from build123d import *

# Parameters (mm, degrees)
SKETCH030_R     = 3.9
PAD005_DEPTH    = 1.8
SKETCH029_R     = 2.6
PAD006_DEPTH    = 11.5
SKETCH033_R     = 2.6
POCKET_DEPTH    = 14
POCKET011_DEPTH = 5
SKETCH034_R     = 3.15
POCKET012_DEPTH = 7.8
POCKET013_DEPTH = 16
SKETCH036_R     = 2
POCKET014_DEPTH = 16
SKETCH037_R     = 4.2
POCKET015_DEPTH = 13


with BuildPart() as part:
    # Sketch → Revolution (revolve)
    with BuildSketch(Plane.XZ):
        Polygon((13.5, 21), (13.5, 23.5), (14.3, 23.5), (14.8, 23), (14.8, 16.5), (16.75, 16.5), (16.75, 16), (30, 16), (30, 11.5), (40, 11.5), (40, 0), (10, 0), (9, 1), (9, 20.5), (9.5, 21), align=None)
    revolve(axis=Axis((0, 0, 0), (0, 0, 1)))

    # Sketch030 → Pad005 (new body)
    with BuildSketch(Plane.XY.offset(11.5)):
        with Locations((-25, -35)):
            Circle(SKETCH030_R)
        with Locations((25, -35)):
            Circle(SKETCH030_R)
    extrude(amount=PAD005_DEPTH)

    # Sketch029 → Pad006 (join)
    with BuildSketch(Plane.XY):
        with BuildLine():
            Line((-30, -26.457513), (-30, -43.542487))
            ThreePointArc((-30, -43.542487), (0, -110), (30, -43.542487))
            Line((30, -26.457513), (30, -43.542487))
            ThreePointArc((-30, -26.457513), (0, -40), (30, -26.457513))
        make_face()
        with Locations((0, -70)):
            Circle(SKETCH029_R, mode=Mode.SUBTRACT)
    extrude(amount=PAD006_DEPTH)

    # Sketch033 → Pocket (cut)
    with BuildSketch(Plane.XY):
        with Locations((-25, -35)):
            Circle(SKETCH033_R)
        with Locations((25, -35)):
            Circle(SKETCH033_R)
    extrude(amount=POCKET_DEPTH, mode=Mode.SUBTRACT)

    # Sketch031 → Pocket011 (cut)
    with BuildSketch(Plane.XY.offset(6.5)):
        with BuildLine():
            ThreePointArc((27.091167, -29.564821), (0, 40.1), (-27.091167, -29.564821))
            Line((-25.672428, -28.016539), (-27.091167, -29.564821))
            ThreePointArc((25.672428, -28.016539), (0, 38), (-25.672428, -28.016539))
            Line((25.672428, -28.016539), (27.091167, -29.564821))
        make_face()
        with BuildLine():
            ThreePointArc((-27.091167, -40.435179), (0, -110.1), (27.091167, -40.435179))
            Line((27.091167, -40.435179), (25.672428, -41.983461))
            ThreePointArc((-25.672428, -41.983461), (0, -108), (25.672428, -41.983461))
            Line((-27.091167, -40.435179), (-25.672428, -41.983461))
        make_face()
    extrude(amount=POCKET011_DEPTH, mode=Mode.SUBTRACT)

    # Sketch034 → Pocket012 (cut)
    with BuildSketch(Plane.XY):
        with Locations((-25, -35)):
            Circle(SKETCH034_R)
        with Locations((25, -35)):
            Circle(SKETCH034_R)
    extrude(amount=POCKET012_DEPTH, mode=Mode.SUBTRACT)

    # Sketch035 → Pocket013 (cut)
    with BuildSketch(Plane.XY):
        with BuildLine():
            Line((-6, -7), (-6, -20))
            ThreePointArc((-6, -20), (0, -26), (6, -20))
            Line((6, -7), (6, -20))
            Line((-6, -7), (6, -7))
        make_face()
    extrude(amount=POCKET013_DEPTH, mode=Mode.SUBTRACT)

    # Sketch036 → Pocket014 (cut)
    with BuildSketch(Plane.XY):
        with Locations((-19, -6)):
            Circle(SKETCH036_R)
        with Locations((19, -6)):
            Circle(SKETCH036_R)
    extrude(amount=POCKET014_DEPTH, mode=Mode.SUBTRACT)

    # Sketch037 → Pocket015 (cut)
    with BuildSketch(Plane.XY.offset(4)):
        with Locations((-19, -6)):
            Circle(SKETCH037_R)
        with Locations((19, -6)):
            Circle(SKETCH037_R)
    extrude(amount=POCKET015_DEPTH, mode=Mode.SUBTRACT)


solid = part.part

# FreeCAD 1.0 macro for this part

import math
import FreeCAD as App
import Part
import Sketcher
Q = App.Units.Quantity


def add_polygon(sketch, points):
    """Adds a closed chain of lines whose ends are joined by coincident constraints."""
    first, n = sketch.GeometryCount, len(points)
    for a, b in zip(points, points[1:] + points[:1]):
        sketch.addGeometry(Part.LineSegment(App.Vector(*a, 0), App.Vector(*b, 0)), False)
    for i in range(n):
        sketch.addConstraint(Sketcher.Constraint("Coincident", first + i, 2, first + (i + 1) % n, 1))

doc = App.newDocument("Part")
params = doc.addObject("Spreadsheet::Sheet", "Params")
for row, (alias, value) in enumerate([
    ("sketch1_width", "4 mm"),
    ("sketch1_width2", "30 mm"),
    ("sketch1_width3", "10 mm"),
    ("sketch1_width4", "0.8 mm"),
    ("sketch1_height", "2.5 mm"),
    ("revolution_angle", "360 deg"),
    ("sketch2_diameter", "7.8 mm"),
    ("pad1_length", "1.8 mm"),
    ("sketch3_radius", "40 mm"),
    ("sketch3_diameter", "5.2 mm"),
    ("pad2_length", "11.5 mm"),
    ("sketch4_diameter", "5.2 mm"),
    ("pocket1_length", "14 mm"),
    ("sketch5_radius", "38 mm"),
    ("sketch5_radius2", "40.1 mm"),
    ("pocket2_length", "5 mm"),
    ("sketch6_diameter", "6.3 mm"),
    ("pocket3_length", "7.8 mm"),
    ("sketch7_radius", "6 mm"),
    ("sketch7_height", "13 mm"),
    ("pocket4_length", "16 mm"),
    ("sketch8_diameter", "4 mm"),
    ("pocket5_length", "16 mm"),
    ("sketch9_diameter", "8.4 mm"),
    ("pocket6_length", "13 mm"),
], start=1):
    params.set(f"A{row}", alias)
    params.set(f"B{row}", "=" + value)
    params.setAlias(f"B{row}", alias)

body = doc.addObject("PartDesign::Body", "Body")

sketch1 = body.newObject("Sketcher::SketchObject", "Sketch")
sketch1.AttachmentSupport = (doc.getObject("XZ_Plane"), [""])
sketch1.MapMode = "FlatFace"
add_polygon(sketch1, [(13.5, 23.5), (13.5, 21), (9.5, 21), (9, 20.5), (9, 1), (10, 0), (40, 0), (40, 11.5), (30, 11.5), (30, 16), (16.8, 16), (16.8, 16.5), (14.8, 16.5), (14.8, 23), (14.3, 23.5)])
sketch1.addConstraint(Sketcher.Constraint("Vertical", 0))
sketch1.addConstraint(Sketcher.Constraint("Horizontal", 1))
sketch1.addConstraint(Sketcher.Constraint("Vertical", 3))
sketch1.addConstraint(Sketcher.Constraint("Horizontal", 5))
sketch1.addConstraint(Sketcher.Constraint("Vertical", 6))
sketch1.addConstraint(Sketcher.Constraint("Horizontal", 7))
sketch1.addConstraint(Sketcher.Constraint("Vertical", 8))
sketch1.addConstraint(Sketcher.Constraint("Horizontal", 9))
sketch1.addConstraint(Sketcher.Constraint("Vertical", 10))
sketch1.addConstraint(Sketcher.Constraint("Horizontal", 11))
sketch1.addConstraint(Sketcher.Constraint("Vertical", 12))
sketch1.addConstraint(Sketcher.Constraint("Horizontal", 14))
sketch1.addConstraint(Sketcher.Constraint("PointOnObject", 4, 2, -1))
sketch1.addConstraint(Sketcher.Constraint("Perpendicular", 2, 4))
sketch1.addConstraint(Sketcher.Constraint("Parallel", 4, 13))
sketch1.addConstraint(Sketcher.Constraint("Equal", 2, 13))
sketch1.addConstraint(Sketcher.Constraint("DistanceX", 1, 2, 1, 1, 4.0))
sketch1.addConstraint(Sketcher.Constraint("DistanceX", 5, 1, 5, 2, 30.0))
sketch1.addConstraint(Sketcher.Constraint("DistanceX", 7, 2, 7, 1, 10.0))
sketch1.addConstraint(Sketcher.Constraint("Angle", 2, Q("-135 deg")))
sketch1.addConstraint(Sketcher.Constraint("DistanceX", 14, 2, 14, 1, 0.8))
sketch1.addConstraint(Sketcher.Constraint("DistanceY", 0, 2, 0, 1, 2.5))
sketch1.addConstraint(Sketcher.Constraint("DistanceY", 3, 2, 3, 1, 19.5))
sketch1.addConstraint(Sketcher.Constraint("DistanceY", 6, 1, 6, 2, 11.5))
sketch1.addConstraint(Sketcher.Constraint("DistanceY", 8, 1, 8, 2, 4.5))
sketch1.addConstraint(Sketcher.Constraint("DistanceY", 10, 1, 10, 2, 0.5))
sketch1.addConstraint(Sketcher.Constraint("DistanceY", 12, 1, 12, 2, 6.5))
sketch1.addConstraint(Sketcher.Constraint("DistanceY", -1, 1, 0, 2, 21.0))
sketch1.addConstraint(Sketcher.Constraint("DistanceX", -1, 1, 2, 2, 9.0))
sketch1.addConstraint(Sketcher.Constraint("DistanceX", 9, 2, 9, 1, 13.25))
sketch1.setExpression("Constraints[31]", "Params.sketch1_width")
sketch1.setExpression("Constraints[32]", "Params.sketch1_width2")
sketch1.setExpression("Constraints[33]", "Params.sketch1_width3")
sketch1.setExpression("Constraints[35]", "Params.sketch1_width4")
sketch1.setExpression("Constraints[36]", "Params.sketch1_height")
revolution = body.newObject("PartDesign::Revolution", "Revolution")
revolution.Profile = sketch1
revolution.ReferenceAxis = (sketch1, ["V_Axis"])
revolution.setExpression("Angle", "Params.revolution_angle")

sketch2 = body.newObject("Sketcher::SketchObject", "Sketch001")
sketch2.AttachmentSupport = (doc.getObject("XY_Plane"), [""])
sketch2.MapMode = "FlatFace"
sketch2.AttachmentOffset = App.Placement(App.Vector(0, 0, 11.5), App.Rotation())
sketch2.addGeometry(Part.Circle(App.Vector(-25, -35, 0), App.Vector(0, 0, 1), 3.9), False)
sketch2.addGeometry(Part.Circle(App.Vector(25, -35, 0), App.Vector(0, 0, 1), 3.9), False)
sketch2.addConstraint(Sketcher.Constraint("Equal", 0, 1))
sketch2.addConstraint(Sketcher.Constraint("Symmetric", 0, 3, 1, 3, -2))
sketch2.addConstraint(Sketcher.Constraint("Diameter", 0, 7.8))
sketch2.addConstraint(Sketcher.Constraint("DistanceX", 0, 3, -1, 1, 25.0))
sketch2.addConstraint(Sketcher.Constraint("DistanceY", 0, 3, -1, 1, 35.0))
sketch2.setExpression("Constraints[2]", "Params.sketch2_diameter")
pad1 = body.newObject("PartDesign::Pad", "Pad")
pad1.Profile = sketch2
pad1.setExpression("Length", "Params.pad1_length")

sketch3 = body.newObject("Sketcher::SketchObject", "Sketch002")
sketch3.AttachmentSupport = (doc.getObject("XY_Plane"), [""])
sketch3.MapMode = "FlatFace"
sketch3.addGeometry(Part.LineSegment(App.Vector(-30, -26.5, 0), App.Vector(-30, -43.5, 0)), False)
sketch3.addGeometry(Part.ArcOfCircle(Part.Circle(App.Vector(0, -70, 0), App.Vector(0, 0, 1), 40), math.radians(139), math.radians(401)), False)
sketch3.addGeometry(Part.LineSegment(App.Vector(30, -43.5, 0), App.Vector(30, -26.5, 0)), False)
sketch3.addGeometry(Part.ArcOfCircle(Part.Circle(App.Vector(0, 0, 0), App.Vector(0, 0, 1), 40), math.radians(-139), math.radians(-41)), False)
sketch3.addGeometry(Part.Circle(App.Vector(0, -70, 0), App.Vector(0, 0, 1), 2.6), False)
sketch3.addConstraint(Sketcher.Constraint("Coincident", 0, 2, 1, 1))
sketch3.addConstraint(Sketcher.Constraint("Coincident", 1, 2, 2, 1))
sketch3.addConstraint(Sketcher.Constraint("Coincident", 2, 2, 3, 2))
sketch3.addConstraint(Sketcher.Constraint("Coincident", 3, 1, 0, 1))
sketch3.addConstraint(Sketcher.Constraint("Vertical", 0))
sketch3.addConstraint(Sketcher.Constraint("Vertical", 2))
sketch3.addConstraint(Sketcher.Constraint("Coincident", 3, 3, -1, 1))
sketch3.addConstraint(Sketcher.Constraint("Coincident", 4, 3, 1, 3))
sketch3.addConstraint(Sketcher.Constraint("Equal", 1, 3))
sketch3.addConstraint(Sketcher.Constraint("Symmetric", 0, 2, 1, 2, -2))
sketch3.addConstraint(Sketcher.Constraint("Radius", 1, 40.0))
sketch3.addConstraint(Sketcher.Constraint("Diameter", 4, 5.2))
sketch3.addConstraint(Sketcher.Constraint("DistanceY", 1, 3, -1, 1, 70.0))
sketch3.addConstraint(Sketcher.Constraint("DistanceX", 0, 2, -1, 1, 30.0))
sketch3.setExpression("Constraints[10]", "Params.sketch3_radius")
sketch3.setExpression("Constraints[11]", "Params.sketch3_diameter")
pad2 = body.newObject("PartDesign::Pad", "Pad001")
pad2.Profile = sketch3
pad2.setExpression("Length", "Params.pad2_length")

sketch4 = body.newObject("Sketcher::SketchObject", "Sketch003")
sketch4.AttachmentSupport = (doc.getObject("XY_Plane"), [""])
sketch4.MapMode = "FlatFace"
sketch4.addGeometry(Part.Circle(App.Vector(-25, -35, 0), App.Vector(0, 0, 1), 2.6), False)
sketch4.addGeometry(Part.Circle(App.Vector(25, -35, 0), App.Vector(0, 0, 1), 2.6), False)
sketch4.addConstraint(Sketcher.Constraint("Equal", 0, 1))
sketch4.addConstraint(Sketcher.Constraint("Symmetric", 0, 3, 1, 3, -2))
sketch4.addConstraint(Sketcher.Constraint("Diameter", 0, 5.2))
sketch4.addConstraint(Sketcher.Constraint("DistanceX", 0, 3, -1, 1, 25.0))
sketch4.addConstraint(Sketcher.Constraint("DistanceY", 0, 3, -1, 1, 35.0))
sketch4.setExpression("Constraints[2]", "Params.sketch4_diameter")
pocket1 = body.newObject("PartDesign::Pocket", "Pocket")
pocket1.Profile = sketch4
pocket1.setExpression("Length", "Params.pocket1_length")
pocket1.Reversed = True

sketch5 = body.newObject("Sketcher::SketchObject", "Sketch004")
sketch5.AttachmentSupport = (doc.getObject("XY_Plane"), [""])
sketch5.MapMode = "FlatFace"
sketch5.AttachmentOffset = App.Placement(App.Vector(0, 0, 6.5), App.Rotation())
sketch5.addGeometry(Part.ArcOfCircle(Part.Circle(App.Vector(0, 0, 0), App.Vector(0, 0, 1), 40.1), math.radians(-48), math.radians(228)), False)
sketch5.addGeometry(Part.LineSegment(App.Vector(-27.1, -29.6, 0), App.Vector(-25.7, -28, 0)), False)
sketch5.addGeometry(Part.ArcOfCircle(Part.Circle(App.Vector(0, 0, 0), App.Vector(0, 0, 1), 38), math.radians(-47), math.radians(227)), False)
sketch5.addGeometry(Part.LineSegment(App.Vector(25.7, -28, 0), App.Vector(27.1, -29.6, 0)), False)
sketch5.addGeometry(Part.ArcOfCircle(Part.Circle(App.Vector(0, -70, 0), App.Vector(0, 0, 1), 40.1), math.radians(132), math.radians(408)), False)
sketch5.addGeometry(Part.LineSegment(App.Vector(27.1, -40.4, 0), App.Vector(25.7, -42, 0)), False)
sketch5.addGeometry(Part.ArcOfCircle(Part.Circle(App.Vector(0, -70, 0), App.Vector(0, 0, 1), 38), math.radians(133), math.radians(407)), False)
sketch5.addGeometry(Part.LineSegment(App.Vector(-25.7, -42, 0), App.Vector(-27.1, -40.4, 0)), False)
sketch5.addConstraint(Sketcher.Constraint("Coincident", 0, 2, 1, 1))
sketch5.addConstraint(Sketcher.Constraint("Coincident", 1, 2, 2, 2))
sketch5.addConstraint(Sketcher.Constraint("Coincident", 2, 1, 3, 1))
sketch5.addConstraint(Sketcher.Constraint("Coincident", 3, 2, 0, 1))
sketch5.addConstraint(Sketcher.Constraint("Coincident", 4, 2, 5, 1))
sketch5.addConstraint(Sketcher.Constraint("Coincident", 5, 2, 6, 2))
sketch5.addConstraint(Sketcher.Constraint("Coincident", 6, 1, 7, 1))
sketch5.addConstraint(Sketcher.Constraint("Coincident", 7, 2, 4, 1))
sketch5.addConstraint(Sketcher.Constraint("Coincident", 0, 3, -1, 1))
sketch5.addConstraint(Sketcher.Constraint("Coincident", 2, 3, -1, 1))
sketch5.addConstraint(Sketcher.Constraint("Coincident", 6, 3, 4, 3))
sketch5.addConstraint(Sketcher.Constraint("Equal", 0, 4))
sketch5.addConstraint(Sketcher.Constraint("Equal", 2, 6))
sketch5.addConstraint(Sketcher.Constraint("Symmetric", 5, 2, 6, 1, -2))
sketch5.addConstraint(Sketcher.Constraint("Parallel", 1, 5))
sketch5.addConstraint(Sketcher.Constraint("Parallel", 3, 7))
sketch5.addConstraint(Sketcher.Constraint("Horizontal", 1, 2, 2, 1))
sketch5.addConstraint(Sketcher.Constraint("Horizontal", 0, 2, 3, 2))
sketch5.addConstraint(Sketcher.Constraint("Vertical", 3, 2, 4, 2))
sketch5.addConstraint(Sketcher.Constraint("Radius", 2, 38.0))
sketch5.addConstraint(Sketcher.Constraint("Radius", 0, 40.1))
sketch5.addConstraint(Sketcher.Constraint("DistanceY", 4, 3, -1, 1, 70.0))
sketch5.addConstraint(Sketcher.Constraint("Angle", 1, Q("47.500001 deg")))
sketch5.addConstraint(Sketcher.Constraint("DistanceY", 0, 2, -1, 1, 29.564821))
sketch5.setExpression("Constraints[19]", "Params.sketch5_radius")
sketch5.setExpression("Constraints[20]", "Params.sketch5_radius2")
pocket2 = body.newObject("PartDesign::Pocket", "Pocket001")
pocket2.Profile = sketch5
pocket2.setExpression("Length", "Params.pocket2_length")
pocket2.Reversed = True

sketch6 = body.newObject("Sketcher::SketchObject", "Sketch005")
sketch6.AttachmentSupport = (doc.getObject("XY_Plane"), [""])
sketch6.MapMode = "FlatFace"
sketch6.addGeometry(Part.Circle(App.Vector(-25, -35, 0), App.Vector(0, 0, 1), 3.1), False)
sketch6.addGeometry(Part.Circle(App.Vector(25, -35, 0), App.Vector(0, 0, 1), 3.1), False)
sketch6.addConstraint(Sketcher.Constraint("Equal", 0, 1))
sketch6.addConstraint(Sketcher.Constraint("Symmetric", 0, 3, 1, 3, -2))
sketch6.addConstraint(Sketcher.Constraint("Diameter", 0, 6.3))
sketch6.addConstraint(Sketcher.Constraint("DistanceX", 0, 3, -1, 1, 25.0))
sketch6.addConstraint(Sketcher.Constraint("DistanceY", 0, 3, -1, 1, 35.0))
sketch6.setExpression("Constraints[2]", "Params.sketch6_diameter")
pocket3 = body.newObject("PartDesign::Pocket", "Pocket002")
pocket3.Profile = sketch6
pocket3.setExpression("Length", "Params.pocket3_length")
pocket3.Reversed = True

sketch7 = body.newObject("Sketcher::SketchObject", "Sketch006")
sketch7.AttachmentSupport = (doc.getObject("XY_Plane"), [""])
sketch7.MapMode = "FlatFace"
sketch7.addGeometry(Part.LineSegment(App.Vector(-6, -7, 0), App.Vector(-6, -20, 0)), False)
sketch7.addGeometry(Part.ArcOfCircle(Part.Circle(App.Vector(0, -20, 0), App.Vector(0, 0, 1), 6), math.radians(180), math.radians(360)), False)
sketch7.addGeometry(Part.LineSegment(App.Vector(6, -20, 0), App.Vector(6, -7, 0)), False)
sketch7.addGeometry(Part.LineSegment(App.Vector(6, -7, 0), App.Vector(-6, -7, 0)), False)
sketch7.addConstraint(Sketcher.Constraint("Tangent", 0, 2, 1, 1))
sketch7.addConstraint(Sketcher.Constraint("Tangent", 1, 2, 2, 1))
sketch7.addConstraint(Sketcher.Constraint("Coincident", 2, 2, 3, 1))
sketch7.addConstraint(Sketcher.Constraint("Coincident", 3, 2, 0, 1))
sketch7.addConstraint(Sketcher.Constraint("Vertical", 0))
sketch7.addConstraint(Sketcher.Constraint("Vertical", 2))
sketch7.addConstraint(Sketcher.Constraint("Horizontal", 3))
sketch7.addConstraint(Sketcher.Constraint("PointOnObject", 1, 3, -2))
sketch7.addConstraint(Sketcher.Constraint("Radius", 1, 6.0))
sketch7.addConstraint(Sketcher.Constraint("DistanceY", 0, 2, 0, 1, 13.0))
sketch7.addConstraint(Sketcher.Constraint("DistanceY", 1, 3, -1, 1, 20.0))
sketch7.setExpression("Constraints[8]", "Params.sketch7_radius")
sketch7.setExpression("Constraints[9]", "Params.sketch7_height")
pocket4 = body.newObject("PartDesign::Pocket", "Pocket003")
pocket4.Profile = sketch7
pocket4.setExpression("Length", "Params.pocket4_length")
pocket4.Reversed = True

sketch8 = body.newObject("Sketcher::SketchObject", "Sketch007")
sketch8.AttachmentSupport = (doc.getObject("XY_Plane"), [""])
sketch8.MapMode = "FlatFace"
sketch8.addGeometry(Part.Circle(App.Vector(-19, -6, 0), App.Vector(0, 0, 1), 2), False)
sketch8.addGeometry(Part.Circle(App.Vector(19, -6, 0), App.Vector(0, 0, 1), 2), False)
sketch8.addConstraint(Sketcher.Constraint("Equal", 0, 1))
sketch8.addConstraint(Sketcher.Constraint("Symmetric", 0, 3, 1, 3, -2))
sketch8.addConstraint(Sketcher.Constraint("Diameter", 0, 4.0))
sketch8.addConstraint(Sketcher.Constraint("DistanceX", 0, 3, -1, 1, 19.0))
sketch8.addConstraint(Sketcher.Constraint("DistanceY", 0, 3, -1, 1, 6.0))
sketch8.setExpression("Constraints[2]", "Params.sketch8_diameter")
pocket5 = body.newObject("PartDesign::Pocket", "Pocket004")
pocket5.Profile = sketch8
pocket5.setExpression("Length", "Params.pocket5_length")
pocket5.Reversed = True

sketch9 = body.newObject("Sketcher::SketchObject", "Sketch008")
sketch9.AttachmentSupport = (doc.getObject("XY_Plane"), [""])
sketch9.MapMode = "FlatFace"
sketch9.AttachmentOffset = App.Placement(App.Vector(0, 0, 4), App.Rotation())
sketch9.addGeometry(Part.Circle(App.Vector(-19, -6, 0), App.Vector(0, 0, 1), 4.2), False)
sketch9.addGeometry(Part.Circle(App.Vector(19, -6, 0), App.Vector(0, 0, 1), 4.2), False)
sketch9.addConstraint(Sketcher.Constraint("Equal", 0, 1))
sketch9.addConstraint(Sketcher.Constraint("Symmetric", 0, 3, 1, 3, -2))
sketch9.addConstraint(Sketcher.Constraint("Diameter", 0, 8.4))
sketch9.addConstraint(Sketcher.Constraint("DistanceX", 0, 3, -1, 1, 19.0))
sketch9.addConstraint(Sketcher.Constraint("DistanceY", 0, 3, -1, 1, 6.0))
sketch9.setExpression("Constraints[2]", "Params.sketch9_diameter")
pocket6 = body.newObject("PartDesign::Pocket", "Pocket005")
pocket6.Profile = sketch9
pocket6.setExpression("Length", "Params.pocket6_length")
pocket6.Reversed = True

doc.recompute()
